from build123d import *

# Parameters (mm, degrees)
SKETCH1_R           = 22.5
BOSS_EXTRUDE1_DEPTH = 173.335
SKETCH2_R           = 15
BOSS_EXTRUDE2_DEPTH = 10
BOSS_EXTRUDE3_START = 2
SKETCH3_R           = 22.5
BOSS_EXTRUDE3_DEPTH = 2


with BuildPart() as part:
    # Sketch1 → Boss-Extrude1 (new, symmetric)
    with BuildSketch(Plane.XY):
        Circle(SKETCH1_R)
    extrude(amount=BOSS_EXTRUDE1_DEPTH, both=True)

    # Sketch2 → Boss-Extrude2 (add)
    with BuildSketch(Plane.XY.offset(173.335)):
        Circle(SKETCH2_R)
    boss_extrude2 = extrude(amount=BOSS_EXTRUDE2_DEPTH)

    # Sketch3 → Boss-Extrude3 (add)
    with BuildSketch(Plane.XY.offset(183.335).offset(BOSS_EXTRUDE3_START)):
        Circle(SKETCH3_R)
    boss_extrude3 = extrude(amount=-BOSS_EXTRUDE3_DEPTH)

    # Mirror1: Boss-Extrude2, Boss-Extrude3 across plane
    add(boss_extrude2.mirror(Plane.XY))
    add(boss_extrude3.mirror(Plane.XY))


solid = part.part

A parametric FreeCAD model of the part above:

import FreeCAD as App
import Part
import Sketcher

doc = App.newDocument("Part")
body = doc.addObject("PartDesign::Body", "Body")

# Sketch on XY plane
sketch1 = body.newObject("Sketcher::SketchObject", "Sketch")
sketch1.AttachmentSupport = (doc.getObject("XY_Plane"), [""])
sketch1.MapMode = "FlatFace"
sketch1.addGeometry(Part.Circle(App.Vector(0, 0, 0), App.Vector(0, 0, 1), 22), False)
sketch1.addConstraint([
    Sketcher.Constraint("Coincident", 0, 3, -1, 1),
    Sketcher.Constraint("Diameter", 0, 45.0),
])
pad1 = body.newObject("PartDesign::Pad", "Pad")
pad1.Profile = sketch1
pad1.Length = 346.67
pad1.Midplane = True

# Sketch on XY plane
sketch2 = body.newObject("Sketcher::SketchObject", "Sketch001")
sketch2.AttachmentSupport = (doc.getObject("XY_Plane"), [""])
sketch2.MapMode = "FlatFace"
sketch2.AttachmentOffset = App.Placement(App.Vector(0, 0, 173.335), App.Rotation())
sketch2.addGeometry(Part.Circle(App.Vector(0, 0, 0), App.Vector(0, 0, 1), 15), False)
sketch2.addConstraint([
    Sketcher.Constraint("Coincident", 0, 3, -1, 1),
    Sketcher.Constraint("Diameter", 0, 30.0),
])
pad2 = body.newObject("PartDesign::Pad", "Pad001")
pad2.Profile = sketch2
pad2.Length = 10

# Sketch on XY plane
sketch3 = body.newObject("Sketcher::SketchObject", "Sketch002")
sketch3.AttachmentSupport = (doc.getObject("XY_Plane"), [""])
sketch3.MapMode = "FlatFace"
sketch3.AttachmentOffset = App.Placement(App.Vector(0, 0, 185.335), App.Rotation())
sketch3.addGeometry(Part.Circle(App.Vector(0, 0, 0), App.Vector(0, 0, 1), 22), False)
sketch3.addConstraint([
    Sketcher.Constraint("Coincident", 0, 3, -1, 1),
    Sketcher.Constraint("Diameter", 0, 45.0),
])
pad3 = body.newObject("PartDesign::Pad", "Pad002")
pad3.Profile = sketch3
pad3.Length = 2
pad3.Reversed = True
doc.recompute()

mirrored = body.newObject("PartDesign::Mirrored", "Mirrored")
mirrored.Originals = [pad2, pad3]
mirrored.MirrorPlane = (doc.getObject("XY_Plane"), [""])
body.Tip = mirrored

doc.recompute()
